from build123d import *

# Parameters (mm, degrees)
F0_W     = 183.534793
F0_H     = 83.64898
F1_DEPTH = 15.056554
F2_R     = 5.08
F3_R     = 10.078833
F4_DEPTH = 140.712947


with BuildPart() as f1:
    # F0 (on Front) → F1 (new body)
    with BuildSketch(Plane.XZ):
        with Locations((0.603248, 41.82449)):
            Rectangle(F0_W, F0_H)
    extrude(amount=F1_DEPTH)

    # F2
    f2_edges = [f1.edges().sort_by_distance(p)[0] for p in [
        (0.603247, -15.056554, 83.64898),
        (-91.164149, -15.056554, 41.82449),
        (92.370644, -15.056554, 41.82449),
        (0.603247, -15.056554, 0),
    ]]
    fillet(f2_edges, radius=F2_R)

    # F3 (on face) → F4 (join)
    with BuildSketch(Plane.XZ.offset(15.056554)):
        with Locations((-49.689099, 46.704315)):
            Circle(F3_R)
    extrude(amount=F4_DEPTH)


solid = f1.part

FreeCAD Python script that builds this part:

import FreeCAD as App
import Part
import Sketcher
from FreeCAD import Vector
Q = App.Units.Quantity


def edges_at(feature, points):
    """Names of the edges that pass closest to the given points."""
    edges = feature.Shape.Edges
    near = lambda p: min(range(len(edges)), key=lambda i: edges[i].distToShape(Part.Vertex(*p))[0])
    return sorted({f"Edge{near(p) + 1}" for p in points})


def add_polygon(sketch, points):
    """Adds a closed chain of lines whose ends are joined by coincident constraints."""
    first, n = sketch.GeometryCount, len(points)
    for a, b in zip(points, points[1:] + points[:1]):
        sketch.addGeometry(Part.LineSegment(App.Vector(*a, 0), App.Vector(*b, 0)), False)
    for i in range(n):
        sketch.addConstraint(Sketcher.Constraint("Coincident", first + i, 2, first + (i + 1) % n, 1))

doc = App.newDocument("Part")
body = doc.addObject("PartDesign::Body", "Body")

# Sketch on XZ plane
sketch1 = doc.addObject("Sketcher::SketchObject", "Sketch")
body.addObject(sketch1)
sketch1.AttachmentSupport = (doc.XZ_Plane, [""])
sketch1.MapMode = "FlatFace"
add_polygon(sketch1, [(-91, 84), (-91, 0), (92, 0), (92, 84)])  # lines 0-3
sketch1.addConstraint([
    Sketcher.Constraint("Vertical", 0),
    Sketcher.Constraint("Horizontal", 1),
    Sketcher.Constraint("Vertical", 2),
    Sketcher.Constraint("Horizontal", 3),
    Sketcher.Constraint("PointOnObject", 0, 2, -1),
    Sketcher.Constraint("DistanceY", 0, 2, 0, 1, 83.64898),
    Sketcher.Constraint("DistanceX", 1, 1, 1, 2, 183.534793),
    Sketcher.Constraint("DistanceX", 0, 2, -1, 1, 91.164148),
])
pad1 = doc.addObject("PartDesign::Pad", "Pad")
body.addObject(pad1)
pad1.Profile = sketch1
pad1.Length = 15.056554
doc.recompute()

fillet = doc.addObject("PartDesign::Fillet", "Fillet")
body.addObject(fillet)
fillet.Base = (pad1, edges_at(pad1, [
    (0.603, -15.057, 83.649),
    (-91.164, -15.057, 41.824),
    (92.371, -15.057, 41.824),
    (0.603, -15.057, 0),
]))
fillet.Radius = Q("0.2 in")

# Sketch on XZ plane
sketch2 = doc.addObject("Sketcher::SketchObject", "Sketch001")
body.addObject(sketch2)
sketch2.AttachmentSupport = (doc.XZ_Plane, [""])
sketch2.MapMode = "FlatFace"
sketch2.AttachmentOffset = App.Placement(Vector(0, 0, 15.056554), App.Rotation())
sketch2.addGeometry(Part.Circle(Vector(-50, 47, 0), Vector(0, 0, 1), 10), False)
sketch2.addConstraint([
    Sketcher.Constraint("Diameter", 0, 20.157666),
    Sketcher.Constraint("DistanceX", 0, 3, -1, 1, 49.689099),
    Sketcher.Constraint("DistanceY", -1, 1, 0, 3, 46.704315),
])
pad2 = doc.addObject("PartDesign::Pad", "Pad001")
body.addObject(pad2)
pad2.Profile = sketch2
pad2.Length = 140.712947

doc.recompute()
